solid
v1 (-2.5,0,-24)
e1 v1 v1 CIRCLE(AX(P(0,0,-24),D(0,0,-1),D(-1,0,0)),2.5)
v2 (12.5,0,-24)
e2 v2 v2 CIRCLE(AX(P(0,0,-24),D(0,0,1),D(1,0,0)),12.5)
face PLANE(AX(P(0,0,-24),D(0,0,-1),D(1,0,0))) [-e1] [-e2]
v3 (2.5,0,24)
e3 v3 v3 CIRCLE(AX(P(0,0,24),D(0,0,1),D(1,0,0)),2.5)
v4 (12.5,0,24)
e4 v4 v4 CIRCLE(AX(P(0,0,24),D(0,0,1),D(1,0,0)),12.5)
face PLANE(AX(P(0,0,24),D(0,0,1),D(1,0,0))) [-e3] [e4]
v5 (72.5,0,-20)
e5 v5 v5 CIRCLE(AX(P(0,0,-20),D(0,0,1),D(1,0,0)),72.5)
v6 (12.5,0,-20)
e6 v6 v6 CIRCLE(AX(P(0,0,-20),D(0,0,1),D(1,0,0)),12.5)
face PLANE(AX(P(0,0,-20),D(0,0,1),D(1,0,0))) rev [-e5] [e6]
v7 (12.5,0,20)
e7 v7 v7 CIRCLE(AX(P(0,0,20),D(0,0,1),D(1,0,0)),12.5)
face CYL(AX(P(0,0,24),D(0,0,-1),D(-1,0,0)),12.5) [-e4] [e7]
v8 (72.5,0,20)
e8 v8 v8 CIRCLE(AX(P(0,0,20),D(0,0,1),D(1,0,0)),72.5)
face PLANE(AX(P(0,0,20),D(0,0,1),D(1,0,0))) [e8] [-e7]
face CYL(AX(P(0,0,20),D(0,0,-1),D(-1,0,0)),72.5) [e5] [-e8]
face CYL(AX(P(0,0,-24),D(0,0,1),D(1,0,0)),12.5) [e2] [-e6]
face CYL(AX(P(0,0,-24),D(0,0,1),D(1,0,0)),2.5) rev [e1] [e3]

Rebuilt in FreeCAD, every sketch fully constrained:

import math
import FreeCAD as App
import Part
import Sketcher
Q = App.Units.Quantity

doc = App.newDocument("Part")
body = doc.addObject("PartDesign::Body", "Body")

# Sketch on XY plane
sketch1 = body.newObject("Sketcher::SketchObject", "Sketch")
sketch1.AttachmentSupport = (doc.getObject("XY_Plane"), [""])
sketch1.MapMode = "FlatFace"
sketch1.addGeometry(Part.Circle(App.Vector(0, 0, 0), App.Vector(0, 0, 1), 72), False)
sketch1.addConstraint(Sketcher.Constraint("Coincident", 0, 3, -1, 1))
sketch1.addConstraint(Sketcher.Constraint("Diameter", 0, Q("145 mm")))
pad1 = body.newObject("PartDesign::Pad", "Pad")
pad1.Profile = sketch1
pad1.Length = 40
pad1.Midplane = True

# Sketch on XY plane
sketch2 = body.newObject("Sketcher::SketchObject", "Sketch001")
sketch2.AttachmentSupport = (doc.getObject("XY_Plane"), [""])
sketch2.MapMode = "FlatFace"
sketch2.AttachmentOffset = App.Placement(App.Vector(0, 0, 20), App.Rotation())
sketch2.addGeometry(Part.Circle(App.Vector(0, 0, 0), App.Vector(0, 0, 1), 12), False)
sketch2.addConstraint(Sketcher.Constraint("Coincident", 0, 3, -1, 1))
sketch2.addConstraint(Sketcher.Constraint("Diameter", 0, Q("25 mm")))
pad2 = body.newObject("PartDesign::Pad", "Pad001")
pad2.Profile = sketch2
pad2.Length = 4
doc.recompute()

mirrored = body.newObject("PartDesign::Mirrored", "Mirrored")
mirrored.Originals = [pad2]
mirrored.MirrorPlane = (doc.getObject("XY_Plane"), [""])
body.Tip = mirrored

# Sketch on XY plane
sketch3 = body.newObject("Sketcher::SketchObject", "Sketch002")
sketch3.AttachmentSupport = (doc.getObject("XY_Plane"), [""])
sketch3.MapMode = "FlatFace"
sketch3.AttachmentOffset = App.Placement(App.Vector(0, 0, 24), App.Rotation())
sketch3.addGeometry(Part.ArcOfCircle(Part.Circle(App.Vector(0, 0, 0), App.Vector(0, 0, 1), 2.5), math.radians(114), math.radians(426)), False)
sketch3.addGeometry(Part.ArcOfCircle(Part.Circle(App.Vector(0, 0, 0), App.Vector(0, 0, 1), 2.5), math.radians(66), math.radians(114)), False)
sketch3.addConstraint(Sketcher.Constraint("Tangent", 0, 1, 1, 2))
sketch3.addConstraint(Sketcher.Constraint("Coincident", 1, 1, 0, 2))
sketch3.addConstraint(Sketcher.Constraint("Coincident", 0, 3, -1, 1))
sketch3.addConstraint(Sketcher.Constraint("Horizontal", 0, 1, 1, 1))
sketch3.addConstraint(Sketcher.Constraint("Radius", 0, Q("2.5 mm")))
sketch3.addConstraint(Sketcher.Constraint("DistanceX", 0, 1, -1, 1, Q("1 mm")))
pocket1 = body.newObject("PartDesign::Pocket", "Pocket")
pocket1.Profile = sketch3
pocket1.Type = "ThroughAll"

doc.recompute()
